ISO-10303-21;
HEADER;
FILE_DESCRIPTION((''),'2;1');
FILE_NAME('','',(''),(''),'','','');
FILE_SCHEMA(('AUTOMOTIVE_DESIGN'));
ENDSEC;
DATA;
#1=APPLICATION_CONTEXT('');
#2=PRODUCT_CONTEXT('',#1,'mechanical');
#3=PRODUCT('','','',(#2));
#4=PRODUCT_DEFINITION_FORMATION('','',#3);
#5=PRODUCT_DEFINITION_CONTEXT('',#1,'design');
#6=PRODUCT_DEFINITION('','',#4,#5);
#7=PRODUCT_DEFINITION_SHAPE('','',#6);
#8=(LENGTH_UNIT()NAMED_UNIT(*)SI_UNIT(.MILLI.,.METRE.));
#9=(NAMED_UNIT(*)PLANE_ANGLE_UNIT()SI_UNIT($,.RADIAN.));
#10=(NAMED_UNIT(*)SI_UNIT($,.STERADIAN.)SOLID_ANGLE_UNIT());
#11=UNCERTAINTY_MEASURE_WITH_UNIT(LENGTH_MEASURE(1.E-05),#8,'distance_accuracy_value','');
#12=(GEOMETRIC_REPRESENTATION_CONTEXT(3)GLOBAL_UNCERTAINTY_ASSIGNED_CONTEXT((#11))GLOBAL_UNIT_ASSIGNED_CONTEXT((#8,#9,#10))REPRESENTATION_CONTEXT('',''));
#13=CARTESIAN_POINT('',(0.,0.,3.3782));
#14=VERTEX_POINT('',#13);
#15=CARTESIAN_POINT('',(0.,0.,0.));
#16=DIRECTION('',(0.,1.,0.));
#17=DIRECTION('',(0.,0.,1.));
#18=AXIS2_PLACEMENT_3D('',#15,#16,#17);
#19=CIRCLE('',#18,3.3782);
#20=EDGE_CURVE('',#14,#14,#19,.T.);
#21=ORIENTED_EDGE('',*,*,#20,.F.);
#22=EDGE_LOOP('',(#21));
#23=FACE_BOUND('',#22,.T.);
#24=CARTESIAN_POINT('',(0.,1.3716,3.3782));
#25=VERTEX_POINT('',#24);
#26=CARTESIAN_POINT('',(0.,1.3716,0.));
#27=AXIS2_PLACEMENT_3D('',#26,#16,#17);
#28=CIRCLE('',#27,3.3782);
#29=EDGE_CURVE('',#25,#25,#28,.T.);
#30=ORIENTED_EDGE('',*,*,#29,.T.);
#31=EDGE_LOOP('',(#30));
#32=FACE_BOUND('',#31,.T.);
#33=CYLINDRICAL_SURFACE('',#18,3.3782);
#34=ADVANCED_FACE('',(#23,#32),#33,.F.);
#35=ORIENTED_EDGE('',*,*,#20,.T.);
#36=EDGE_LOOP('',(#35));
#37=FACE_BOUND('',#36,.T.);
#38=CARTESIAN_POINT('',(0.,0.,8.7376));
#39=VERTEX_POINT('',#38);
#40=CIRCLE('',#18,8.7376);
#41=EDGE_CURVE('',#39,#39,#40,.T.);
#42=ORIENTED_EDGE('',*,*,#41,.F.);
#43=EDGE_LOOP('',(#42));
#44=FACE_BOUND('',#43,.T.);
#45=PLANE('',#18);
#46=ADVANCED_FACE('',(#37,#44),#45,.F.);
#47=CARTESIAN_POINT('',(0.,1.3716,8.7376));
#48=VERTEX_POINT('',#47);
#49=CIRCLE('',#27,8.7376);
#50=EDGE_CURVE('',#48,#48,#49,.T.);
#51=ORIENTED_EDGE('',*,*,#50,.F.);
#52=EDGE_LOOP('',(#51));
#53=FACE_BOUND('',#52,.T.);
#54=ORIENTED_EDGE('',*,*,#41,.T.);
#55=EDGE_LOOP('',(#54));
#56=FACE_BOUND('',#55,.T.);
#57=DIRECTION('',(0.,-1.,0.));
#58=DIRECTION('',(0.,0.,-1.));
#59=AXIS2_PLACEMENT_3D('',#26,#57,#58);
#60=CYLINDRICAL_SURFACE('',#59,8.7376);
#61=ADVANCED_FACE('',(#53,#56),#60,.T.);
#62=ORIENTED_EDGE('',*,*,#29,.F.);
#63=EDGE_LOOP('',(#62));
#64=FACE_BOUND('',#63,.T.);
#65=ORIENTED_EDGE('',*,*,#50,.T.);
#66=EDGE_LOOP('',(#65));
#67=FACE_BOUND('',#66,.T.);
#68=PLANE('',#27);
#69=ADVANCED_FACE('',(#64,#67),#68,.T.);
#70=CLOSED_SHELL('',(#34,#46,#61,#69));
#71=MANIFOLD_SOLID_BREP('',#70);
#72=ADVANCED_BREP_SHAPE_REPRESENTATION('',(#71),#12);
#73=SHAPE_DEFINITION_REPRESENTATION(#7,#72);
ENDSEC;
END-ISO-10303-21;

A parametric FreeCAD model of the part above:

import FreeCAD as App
import Part
import Sketcher

V = App.Vector
Q = App.Units.Quantity

doc = App.newDocument("Part")
body = doc.addObject("PartDesign::Body", "Body")

# Sketch on XZ plane
sketch1 = body.newObject("Sketcher::SketchObject", "Sketch")
sketch1.AttachmentSupport = (doc.getObject("XZ_Plane"), [""])
sketch1.MapMode = "FlatFace"
sketch1.addGeometry(Part.Circle(V(0, 0, 0), V(0, 0, 1), 9), False)
sketch1.addConstraint(Sketcher.Constraint("Coincident", 0, 3, -1, 1))
sketch1.addConstraint(Sketcher.Constraint("Diameter", 0, Q("0.688 in")))
pad1 = body.newObject("PartDesign::Pad", "Pad")
pad1.Profile = sketch1
pad1.Length = Q("0.054 in")
pad1.Reversed = True

# Sketch on XZ plane
sketch2 = body.newObject("Sketcher::SketchObject", "Sketch001")
sketch2.AttachmentSupport = (doc.getObject("XZ_Plane"), [""])
sketch2.MapMode = "FlatFace"
sketch2.AttachmentOffset = App.Placement(V(0, 0, -0.054 * 25.4), App.Rotation())
sketch2.addGeometry(Part.Circle(V(0, 0, 0), V(0, 0, 1), 3.4), False)
sketch2.addConstraint(Sketcher.Constraint("Coincident", 0, 3, -1, 1))
sketch2.addConstraint(Sketcher.Constraint("Diameter", 0, Q("0.266 in")))
pocket1 = body.newObject("PartDesign::Pocket", "Pocket")
pocket1.Profile = sketch2
pocket1.Type = "ThroughAll"
pocket1.Reversed = True

doc.recompute()
